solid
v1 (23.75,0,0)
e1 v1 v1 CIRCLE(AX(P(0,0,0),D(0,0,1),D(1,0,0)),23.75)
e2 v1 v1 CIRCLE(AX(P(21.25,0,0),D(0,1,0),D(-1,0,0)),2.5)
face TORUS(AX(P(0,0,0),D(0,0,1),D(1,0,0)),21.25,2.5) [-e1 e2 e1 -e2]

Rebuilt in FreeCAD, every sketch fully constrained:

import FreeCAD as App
import Part
import Sketcher
from FreeCAD import Vector

doc = App.newDocument("Part")
body = doc.addObject("PartDesign::Body", "Body")

sketch1 = doc.addObject("Sketcher::SketchObject", "Sketch")
body.addObject(sketch1)
sketch1.AttachmentSupport = (doc.XZ_Plane, [""])
sketch1.MapMode = "FlatFace"
sketch1.addGeometry(Part.Circle(Vector(21.2, 0, 0), Vector(0, 0, 1), 2.5), False)
sketch1.addConstraint([
    Sketcher.Constraint("PointOnObject", 0, 3, -1),
    Sketcher.Constraint("Diameter", 0, 5.0),
    Sketcher.Constraint("DistanceX", -1, 1, 0, 3, 21.25),
])

sketch2 = doc.addObject("Sketcher::SketchObject", "Sketch001")
body.addObject(sketch2)
sketch2.AttachmentSupport = (doc.XY_Plane, [""])
sketch2.MapMode = "FlatFace"
sketch2.addGeometry(Part.Circle(Vector(0, 0, 0), Vector(0, 0, 1), 21), False)
sketch2.addConstraint([
    Sketcher.Constraint("Coincident", 0, 3, -1, 1),
    Sketcher.Constraint("Diameter", 0, 42.5),
])
doc.recompute()

additivepipe = doc.addObject("PartDesign::AdditivePipe", "AdditivePipe")
body.addObject(additivepipe)
additivepipe.Profile = sketch1
additivepipe.Spine = (sketch2, ["Edge1"])

doc.recompute()
